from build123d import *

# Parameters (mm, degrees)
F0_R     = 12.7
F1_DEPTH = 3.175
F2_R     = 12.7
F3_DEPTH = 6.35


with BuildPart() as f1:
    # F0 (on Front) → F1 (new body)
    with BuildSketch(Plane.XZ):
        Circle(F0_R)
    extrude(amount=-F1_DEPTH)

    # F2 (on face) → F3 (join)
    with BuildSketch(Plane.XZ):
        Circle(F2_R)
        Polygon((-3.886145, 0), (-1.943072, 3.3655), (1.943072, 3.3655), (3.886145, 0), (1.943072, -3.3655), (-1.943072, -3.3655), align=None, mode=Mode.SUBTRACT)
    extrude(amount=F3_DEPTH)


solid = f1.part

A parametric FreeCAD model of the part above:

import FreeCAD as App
import Part
import Sketcher
Q = App.Units.Quantity

doc = App.newDocument("Part")
params = doc.addObject("Spreadsheet::Sheet", "Params")
for row, (alias, value) in enumerate([
    ("sketch1_diameter", "1 in"),
    ("pad1_length", "0.125 in"),
    ("sketch2_diameter", "1 in"),
    ("pad2_length", "0.25 in"),
], start=1):
    params.set(f"A{row}", alias)
    params.set(f"B{row}", "=" + value)
    params.setAlias(f"B{row}", alias)

body = doc.addObject("PartDesign::Body", "Body")

sketch1 = body.newObject("Sketcher::SketchObject", "Sketch")
sketch1.AttachmentSupport = (doc.getObject("XZ_Plane"), [""])
sketch1.MapMode = "FlatFace"
sketch1.addGeometry(Part.Circle(App.Vector(0, 0, 0), App.Vector(0, 0, 1), 13), False)
sketch1.addConstraint(Sketcher.Constraint("Coincident", 0, 3, -1, 1))
sketch1.addConstraint(Sketcher.Constraint("Diameter", 0, Q("1 in")))
sketch1.setExpression("Constraints[1]", "Params.sketch1_diameter")
pad1 = body.newObject("PartDesign::Pad", "Pad")
pad1.Profile = sketch1
pad1.setExpression("Length", "Params.pad1_length")
pad1.Reversed = True

sketch2 = body.newObject("Sketcher::SketchObject", "Sketch001")
sketch2.AttachmentSupport = (doc.getObject("XZ_Plane"), [""])
sketch2.MapMode = "FlatFace"
sketch2.addGeometry(Part.Circle(App.Vector(0, 0, 0), App.Vector(0, 0, 1), 12.7), False)
sketch2.addGeometry(Part.LineSegment(App.Vector(-1.9, -3.4, 0), App.Vector(-3.9, 0, 0)), False)
sketch2.addGeometry(Part.LineSegment(App.Vector(-3.9, 0, 0), App.Vector(-1.9, 3.4, 0)), False)
sketch2.addGeometry(Part.LineSegment(App.Vector(-1.9, 3.4, 0), App.Vector(1.9, 3.4, 0)), False)
sketch2.addGeometry(Part.LineSegment(App.Vector(1.9, 3.4, 0), App.Vector(3.9, 0, 0)), False)
sketch2.addGeometry(Part.LineSegment(App.Vector(3.9, 0, 0), App.Vector(1.9, -3.4, 0)), False)
sketch2.addGeometry(Part.LineSegment(App.Vector(1.9, -3.4, 0), App.Vector(-1.9, -3.4, 0)), False)
sketch2.addConstraint(Sketcher.Constraint("Coincident", 1, 2, 2, 1))
sketch2.addConstraint(Sketcher.Constraint("Coincident", 2, 2, 3, 1))
sketch2.addConstraint(Sketcher.Constraint("Coincident", 3, 2, 4, 1))
sketch2.addConstraint(Sketcher.Constraint("Coincident", 4, 2, 5, 1))
sketch2.addConstraint(Sketcher.Constraint("Coincident", 5, 2, 6, 1))
sketch2.addConstraint(Sketcher.Constraint("Coincident", 6, 2, 1, 1))
sketch2.addConstraint(Sketcher.Constraint("Horizontal", 3))
sketch2.addConstraint(Sketcher.Constraint("Horizontal", 6))
sketch2.addConstraint(Sketcher.Constraint("Coincident", 0, 3, -1, 1))
sketch2.addConstraint(Sketcher.Constraint("Symmetric", 1, 2, 4, 2, -1, 1))
sketch2.addConstraint(Sketcher.Constraint("Symmetric", 2, 2, 5, 2, -1, 1))
sketch2.addConstraint(Sketcher.Constraint("PointOnObject", 1, 2, -1))
sketch2.addConstraint(Sketcher.Constraint("Parallel", 1, 4))
sketch2.addConstraint(Sketcher.Constraint("Vertical", 3, 2, 5, 2))
sketch2.addConstraint(Sketcher.Constraint("Diameter", 0, Q("1 in")))
sketch2.addConstraint(Sketcher.Constraint("Angle", 1, Q("120.000009 deg")))
sketch2.addConstraint(Sketcher.Constraint("DistanceY", 5, 2, 3, 2, Q("0.265 in")))
sketch2.addConstraint(Sketcher.Constraint("DistanceX", 3, 1, 3, 2, Q("3.886144 mm")))
sketch2.setExpression("Constraints[14]", "Params.sketch2_diameter")
pad2 = body.newObject("PartDesign::Pad", "Pad001")
pad2.Profile = sketch2
pad2.setExpression("Length", "Params.pad2_length")

doc.recompute()
